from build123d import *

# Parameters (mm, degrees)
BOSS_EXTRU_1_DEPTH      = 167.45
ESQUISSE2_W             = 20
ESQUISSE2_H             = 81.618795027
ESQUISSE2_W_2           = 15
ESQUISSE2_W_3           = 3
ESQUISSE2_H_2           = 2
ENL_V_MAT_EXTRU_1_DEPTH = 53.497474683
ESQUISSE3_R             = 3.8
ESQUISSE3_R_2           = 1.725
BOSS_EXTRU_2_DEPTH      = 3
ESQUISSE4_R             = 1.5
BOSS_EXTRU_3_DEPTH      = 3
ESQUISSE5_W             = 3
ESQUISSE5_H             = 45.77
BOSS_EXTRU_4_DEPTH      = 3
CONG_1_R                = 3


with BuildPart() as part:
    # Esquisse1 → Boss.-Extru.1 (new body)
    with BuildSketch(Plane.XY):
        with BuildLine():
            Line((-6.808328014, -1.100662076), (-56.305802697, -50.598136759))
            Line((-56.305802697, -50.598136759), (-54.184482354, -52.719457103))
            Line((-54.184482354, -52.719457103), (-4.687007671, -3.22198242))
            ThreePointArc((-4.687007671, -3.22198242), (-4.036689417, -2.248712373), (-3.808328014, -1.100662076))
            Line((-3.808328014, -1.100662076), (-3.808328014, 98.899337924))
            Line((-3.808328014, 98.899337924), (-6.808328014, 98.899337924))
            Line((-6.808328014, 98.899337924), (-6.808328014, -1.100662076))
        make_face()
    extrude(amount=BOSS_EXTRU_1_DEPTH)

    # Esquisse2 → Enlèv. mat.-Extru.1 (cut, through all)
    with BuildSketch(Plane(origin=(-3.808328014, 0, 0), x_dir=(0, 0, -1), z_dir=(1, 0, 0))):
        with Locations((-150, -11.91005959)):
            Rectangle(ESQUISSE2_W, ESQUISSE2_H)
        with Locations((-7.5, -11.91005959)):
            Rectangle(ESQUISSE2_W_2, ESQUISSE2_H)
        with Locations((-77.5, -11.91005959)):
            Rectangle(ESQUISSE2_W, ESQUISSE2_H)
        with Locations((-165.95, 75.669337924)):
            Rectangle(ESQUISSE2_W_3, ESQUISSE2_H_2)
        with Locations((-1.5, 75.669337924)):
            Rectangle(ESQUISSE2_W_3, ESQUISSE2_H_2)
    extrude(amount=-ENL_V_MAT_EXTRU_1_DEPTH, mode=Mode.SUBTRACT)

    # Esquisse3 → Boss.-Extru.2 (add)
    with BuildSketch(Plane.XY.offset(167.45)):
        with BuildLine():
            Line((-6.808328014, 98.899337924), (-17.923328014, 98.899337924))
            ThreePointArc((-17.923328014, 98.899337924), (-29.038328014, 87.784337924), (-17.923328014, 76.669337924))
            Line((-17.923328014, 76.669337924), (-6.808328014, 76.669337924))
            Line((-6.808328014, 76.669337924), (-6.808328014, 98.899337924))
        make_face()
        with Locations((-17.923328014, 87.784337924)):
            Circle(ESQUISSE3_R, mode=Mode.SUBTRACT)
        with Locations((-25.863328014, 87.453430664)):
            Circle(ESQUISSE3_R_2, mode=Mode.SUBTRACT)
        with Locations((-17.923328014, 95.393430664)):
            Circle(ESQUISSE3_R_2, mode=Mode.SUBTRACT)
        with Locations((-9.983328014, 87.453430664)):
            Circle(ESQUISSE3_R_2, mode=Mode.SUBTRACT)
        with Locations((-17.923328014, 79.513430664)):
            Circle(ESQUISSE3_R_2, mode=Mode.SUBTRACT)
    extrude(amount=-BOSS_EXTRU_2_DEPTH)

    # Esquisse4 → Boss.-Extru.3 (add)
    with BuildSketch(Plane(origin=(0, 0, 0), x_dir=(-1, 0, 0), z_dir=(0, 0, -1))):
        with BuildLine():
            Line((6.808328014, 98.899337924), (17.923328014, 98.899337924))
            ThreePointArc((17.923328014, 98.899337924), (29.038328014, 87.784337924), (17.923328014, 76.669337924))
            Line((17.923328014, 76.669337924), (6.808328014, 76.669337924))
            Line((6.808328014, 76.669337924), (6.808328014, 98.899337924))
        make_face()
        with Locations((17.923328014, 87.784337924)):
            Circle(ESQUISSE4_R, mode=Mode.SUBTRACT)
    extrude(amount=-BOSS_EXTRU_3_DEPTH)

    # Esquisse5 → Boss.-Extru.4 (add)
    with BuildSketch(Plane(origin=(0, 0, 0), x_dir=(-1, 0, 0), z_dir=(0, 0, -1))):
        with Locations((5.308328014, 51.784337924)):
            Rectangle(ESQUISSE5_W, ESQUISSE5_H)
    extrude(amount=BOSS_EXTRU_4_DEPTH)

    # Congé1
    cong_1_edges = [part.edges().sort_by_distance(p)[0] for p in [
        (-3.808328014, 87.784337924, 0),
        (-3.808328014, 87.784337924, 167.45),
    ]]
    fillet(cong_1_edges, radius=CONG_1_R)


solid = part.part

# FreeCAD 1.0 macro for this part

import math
import FreeCAD as App
import Part
import Sketcher
Q = App.Units.Quantity


def edges_at(feature, points):
    """Names of the edges that pass closest to the given points."""
    edges = feature.Shape.Edges
    near = lambda p: min(range(len(edges)), key=lambda i: edges[i].distToShape(Part.Vertex(*p))[0])
    return sorted({f"Edge{near(p) + 1}" for p in points})


def add_polygon(sketch, points):
    """Adds a closed chain of lines whose ends are joined by coincident constraints."""
    first, n = sketch.GeometryCount, len(points)
    for a, b in zip(points, points[1:] + points[:1]):
        sketch.addGeometry(Part.LineSegment(App.Vector(*a, 0), App.Vector(*b, 0)), False)
    for i in range(n):
        sketch.addConstraint(Sketcher.Constraint("Coincident", first + i, 2, first + (i + 1) % n, 1))

doc = App.newDocument("Part")
body = doc.addObject("PartDesign::Body", "Body")

sketch1 = body.newObject("Sketcher::SketchObject", "Sketch")
sketch1.AttachmentSupport = (doc.getObject("XY_Plane"), [""])
sketch1.MapMode = "FlatFace"
sketch1.addGeometry([
    Part.LineSegment(App.Vector(-6.8, -1.1, 0), App.Vector(-56.3, -50.6, 0)),
    Part.LineSegment(App.Vector(-56.3, -50.6, 0), App.Vector(-54.2, -52.7, 0)),
    Part.LineSegment(App.Vector(-54.2, -52.7, 0), App.Vector(-4.7, -3.2, 0)),
    Part.ArcOfCircle(Part.Circle(App.Vector(-6.8, -1.1, 0), App.Vector(0, 0, 1), 3), math.radians(-45), math.radians(0)),
    Part.LineSegment(App.Vector(-3.8, -1.1, 0), App.Vector(-3.8, 98.9, 0)),
    Part.LineSegment(App.Vector(-3.8, 98.9, 0), App.Vector(-6.8, 98.9, 0)),
    Part.LineSegment(App.Vector(-6.8, 98.9, 0), App.Vector(-6.8, -1.1, 0)),
], False)
sketch1.addConstraint([
    Sketcher.Constraint("Coincident", 0, 2, 1, 1),
    Sketcher.Constraint("Coincident", 1, 2, 2, 1),
    Sketcher.Constraint("Tangent", 2, 2, 3, 1),
    Sketcher.Constraint("Tangent", 3, 2, 4, 1),
    Sketcher.Constraint("Coincident", 4, 2, 5, 1),
    Sketcher.Constraint("Coincident", 5, 2, 6, 1),
    Sketcher.Constraint("Coincident", 6, 2, 0, 1),
    Sketcher.Constraint("Vertical", 4),
    Sketcher.Constraint("Horizontal", 5),
    Sketcher.Constraint("Vertical", 6),
    Sketcher.Constraint("Coincident", 6, 2, 3, 3),
    Sketcher.Constraint("Perpendicular", 0, 1),
    Sketcher.Constraint("Perpendicular", 1, 2),
    Sketcher.Constraint("Radius", 3, 3.0),
    Sketcher.Constraint("DistanceY", 4, 1, 4, 2, 100.0),
    Sketcher.Constraint("Angle", 0, Q("-135 deg")),
    Sketcher.Constraint("Distance", 0, 70.0),
    Sketcher.Constraint("DistanceX", 3, 3, -1, 1, 6.808328),
    Sketcher.Constraint("DistanceY", 3, 3, -1, 1, 1.100662),
])
pad1 = body.newObject("PartDesign::Pad", "Pad")
pad1.Profile = sketch1
pad1.Length = 167.45

sketch2 = body.newObject("Sketcher::SketchObject", "Sketch001")
sketch2.AttachmentSupport = (doc.getObject("YZ_Plane"), [""])
sketch2.MapMode = "FlatFace"
sketch2.AttachmentOffset = App.Placement(App.Vector(0, 0, -3.808328), App.Rotation())
add_polygon(sketch2, [(28.9, 160), (-52.7, 160), (-52.7, 140), (28.9, 140)])
add_polygon(sketch2, [(28.9, 15), (-52.7, 15), (-52.7, 0), (28.9, 0)])
add_polygon(sketch2, [(28.9, 87.5), (-52.7, 87.5), (-52.7, 67.5), (28.9, 67.5)])
add_polygon(sketch2, [(76.7, 167.4), (74.7, 167.4), (74.7, 164.4), (76.7, 164.4)])
add_polygon(sketch2, [(76.7, 3), (74.7, 3), (74.7, 0), (76.7, 0)])
sketch2.addConstraint([
    Sketcher.Constraint("Horizontal", 0),
    Sketcher.Constraint("Vertical", 1),
    Sketcher.Constraint("Horizontal", 2),
    Sketcher.Constraint("Vertical", 3),
    Sketcher.Constraint("Horizontal", 4),
    Sketcher.Constraint("Vertical", 5),
    Sketcher.Constraint("Horizontal", 6),
    Sketcher.Constraint("Vertical", 7),
    Sketcher.Constraint("Horizontal", 8),
    Sketcher.Constraint("Vertical", 9),
    Sketcher.Constraint("Horizontal", 10),
    Sketcher.Constraint("Vertical", 11),
    Sketcher.Constraint("Horizontal", 12),
    Sketcher.Constraint("Vertical", 13),
    Sketcher.Constraint("Horizontal", 14),
    Sketcher.Constraint("Vertical", 15),
    Sketcher.Constraint("Horizontal", 16),
    Sketcher.Constraint("Vertical", 17),
    Sketcher.Constraint("Horizontal", 18),
    Sketcher.Constraint("Vertical", 19),
    Sketcher.Constraint("PointOnObject", 5, 2, -1),
    Sketcher.Constraint("PointOnObject", 17, 2, -1),
    Sketcher.Constraint("Vertical", 1, 2, 4, 2),
    Sketcher.Constraint("Vertical", 3, 2, 6, 2),
    Sketcher.Constraint("Vertical", 5, 2, 8, 2),
    Sketcher.Constraint("Vertical", 7, 2, 10, 2),
    Sketcher.Constraint("Vertical", 13, 2, 16, 2),
    Sketcher.Constraint("Vertical", 15, 2, 18, 2),
    Sketcher.Constraint("Equal", 3, 9),
    Sketcher.Constraint("Equal", 15, 17),
    Sketcher.Constraint("DistanceX", 12, 2, 12, 1, 2.0),
    Sketcher.Constraint("DistanceY", 1, 2, 1, 1, 20.0),
    Sketcher.Constraint("DistanceY", 5, 2, 5, 1, 15.0),
    Sketcher.Constraint("DistanceY", 13, 2, 13, 1, 3.0),
    Sketcher.Constraint("DistanceY", -1, 1, 0, 2, 160.0),
    Sketcher.Constraint("DistanceY", -1, 1, 8, 2, 87.5),
    Sketcher.Constraint("DistanceY", -1, 1, 12, 2, 167.45),
    Sketcher.Constraint("DistanceX", 3, 2, 12, 2, 45.77),
    Sketcher.Constraint("DistanceX", 0, 2, 0, 1, 81.618795),
    Sketcher.Constraint("DistanceX", 0, 2, -1, 1, 52.719457),
])
pocket1 = body.newObject("PartDesign::Pocket", "Pocket")
pocket1.Profile = sketch2
pocket1.Type = "ThroughAll"

sketch3 = body.newObject("Sketcher::SketchObject", "Sketch002")
sketch3.AttachmentSupport = (doc.getObject("XY_Plane"), [""])
sketch3.MapMode = "FlatFace"
sketch3.AttachmentOffset = App.Placement(App.Vector(0, 0, 167.45), App.Rotation())
sketch3.addGeometry([
    Part.LineSegment(App.Vector(-6.8, 98.9, 0), App.Vector(-17.9, 98.9, 0)),
    Part.ArcOfCircle(Part.Circle(App.Vector(-17.9, 87.8, 0), App.Vector(0, 0, 1), 11.1), math.radians(90), math.radians(270)),
    Part.LineSegment(App.Vector(-17.9, 76.7, 0), App.Vector(-6.8, 76.7, 0)),
    Part.LineSegment(App.Vector(-6.8, 76.7, 0), App.Vector(-6.8, 98.9, 0)),
    Part.Circle(App.Vector(-17.9, 79.5, 0), App.Vector(0, 0, 1), 1.7),
    Part.Circle(App.Vector(-25.9, 87.5, 0), App.Vector(0, 0, 1), 1.7),
    Part.Circle(App.Vector(-17.9, 87.8, 0), App.Vector(0, 0, 1), 3.8),
    Part.Circle(App.Vector(-10, 87.5, 0), App.Vector(0, 0, 1), 1.7),
    Part.Circle(App.Vector(-17.9, 95.4, 0), App.Vector(0, 0, 1), 1.7),
], False)
sketch3.addConstraint([
    Sketcher.Constraint("Tangent", 0, 2, 1, 1),
    Sketcher.Constraint("Tangent", 1, 2, 2, 1),
    Sketcher.Constraint("Coincident", 2, 2, 3, 1),
    Sketcher.Constraint("Coincident", 3, 2, 0, 1),
    Sketcher.Constraint("Horizontal", 0),
    Sketcher.Constraint("Horizontal", 2),
    Sketcher.Constraint("Vertical", 3),
    Sketcher.Constraint("Coincident", 6, 3, 1, 3),
    Sketcher.Constraint("Equal", 4, 5),
    Sketcher.Constraint("Equal", 5, 7),
    Sketcher.Constraint("Equal", 7, 8),
    Sketcher.Constraint("Horizontal", 5, 3, 7, 3),
    Sketcher.Constraint("Vertical", 1, 3, 4, 3),
    Sketcher.Constraint("Vertical", 6, 3, 8, 3),
    Sketcher.Constraint("Diameter", 6, 7.6),
    Sketcher.Constraint("Diameter", 4, 3.45),
    Sketcher.Constraint("Radius", 1, 11.115),
    Sketcher.Constraint("DistanceX", 0, 2, 0, 1, 11.115),
    Sketcher.Constraint("DistanceX", 5, 3, 1, 3, 7.94),
    Sketcher.Constraint("DistanceY", 4, 3, 5, 3, 7.94),
    Sketcher.Constraint("DistanceX", 1, 3, 7, 3, 7.94),
    Sketcher.Constraint("DistanceY", 7, 3, 8, 3, 7.94),
    Sketcher.Constraint("DistanceX", 1, 3, -1, 1, 17.923328),
    Sketcher.Constraint("DistanceY", -1, 1, 4, 3, 79.513431),
    Sketcher.Constraint("DistanceY", -1, 1, 1, 3, 87.784338),
])
pad2 = body.newObject("PartDesign::Pad", "Pad001")
pad2.Profile = sketch3
pad2.Length = 3
pad2.Reversed = True

sketch4 = body.newObject("Sketcher::SketchObject", "Sketch003")
sketch4.AttachmentSupport = (doc.getObject("XY_Plane"), [""])
sketch4.MapMode = "FlatFace"
sketch4.addGeometry([
    Part.LineSegment(App.Vector(-17.9, 98.9, 0), App.Vector(-6.8, 98.9, 0)),
    Part.LineSegment(App.Vector(-6.8, 98.9, 0), App.Vector(-6.8, 76.7, 0)),
    Part.LineSegment(App.Vector(-6.8, 76.7, 0), App.Vector(-17.9, 76.7, 0)),
    Part.ArcOfCircle(Part.Circle(App.Vector(-17.9, 87.8, 0), App.Vector(0, 0, 1), 11.1), math.radians(90), math.radians(270)),
    Part.Circle(App.Vector(-17.9, 87.8, 0), App.Vector(0, 0, 1), 1.5),
], False)
sketch4.addConstraint([
    Sketcher.Constraint("Coincident", 0, 2, 1, 1),
    Sketcher.Constraint("Coincident", 1, 2, 2, 1),
    Sketcher.Constraint("Tangent", 2, 2, 3, 2),
    Sketcher.Constraint("Tangent", 3, 1, 0, 1),
    Sketcher.Constraint("Horizontal", 0),
    Sketcher.Constraint("Vertical", 1),
    Sketcher.Constraint("Horizontal", 2),
    Sketcher.Constraint("Coincident", 4, 3, 3, 3),
    Sketcher.Constraint("Diameter", 4, 3.0),
    Sketcher.Constraint("Radius", 3, 11.115),
    Sketcher.Constraint("DistanceX", 0, 1, 0, 2, 11.115),
    Sketcher.Constraint("DistanceX", 3, 3, -1, 1, 17.923328),
    Sketcher.Constraint("DistanceY", -1, 1, 3, 3, 87.784338),
])
pad3 = body.newObject("PartDesign::Pad", "Pad002")
pad3.Profile = sketch4
pad3.Length = 3

sketch5 = body.newObject("Sketcher::SketchObject", "Sketch004")
sketch5.AttachmentSupport = (doc.getObject("XY_Plane"), [""])
sketch5.MapMode = "FlatFace"
add_polygon(sketch5, [(-3.8, 74.7), (-3.8, 28.9), (-6.8, 28.9), (-6.8, 74.7)])
sketch5.addConstraint([
    Sketcher.Constraint("Vertical", 0),
    Sketcher.Constraint("Horizontal", 1),
    Sketcher.Constraint("Vertical", 2),
    Sketcher.Constraint("Horizontal", 3),
    Sketcher.Constraint("DistanceX", 1, 2, 1, 1, 3.0),
    Sketcher.Constraint("DistanceY", 0, 2, 0, 1, 45.77),
    Sketcher.Constraint("DistanceX", 0, 2, -1, 1, 3.808328),
    Sketcher.Constraint("DistanceY", -1, 1, 0, 2, 28.899338),
])
pad4 = body.newObject("PartDesign::Pad", "Pad003")
pad4.Profile = sketch5
pad4.Length = 3
pad4.Reversed = True
doc.recompute()

fillet = body.newObject("PartDesign::Fillet", "Fillet")
fillet.Base = (pad4, edges_at(pad4, [(-3.808, 87.784, 0), (-3.808, 87.784, 167.45)]))
fillet.Radius = 3

doc.recompute()
